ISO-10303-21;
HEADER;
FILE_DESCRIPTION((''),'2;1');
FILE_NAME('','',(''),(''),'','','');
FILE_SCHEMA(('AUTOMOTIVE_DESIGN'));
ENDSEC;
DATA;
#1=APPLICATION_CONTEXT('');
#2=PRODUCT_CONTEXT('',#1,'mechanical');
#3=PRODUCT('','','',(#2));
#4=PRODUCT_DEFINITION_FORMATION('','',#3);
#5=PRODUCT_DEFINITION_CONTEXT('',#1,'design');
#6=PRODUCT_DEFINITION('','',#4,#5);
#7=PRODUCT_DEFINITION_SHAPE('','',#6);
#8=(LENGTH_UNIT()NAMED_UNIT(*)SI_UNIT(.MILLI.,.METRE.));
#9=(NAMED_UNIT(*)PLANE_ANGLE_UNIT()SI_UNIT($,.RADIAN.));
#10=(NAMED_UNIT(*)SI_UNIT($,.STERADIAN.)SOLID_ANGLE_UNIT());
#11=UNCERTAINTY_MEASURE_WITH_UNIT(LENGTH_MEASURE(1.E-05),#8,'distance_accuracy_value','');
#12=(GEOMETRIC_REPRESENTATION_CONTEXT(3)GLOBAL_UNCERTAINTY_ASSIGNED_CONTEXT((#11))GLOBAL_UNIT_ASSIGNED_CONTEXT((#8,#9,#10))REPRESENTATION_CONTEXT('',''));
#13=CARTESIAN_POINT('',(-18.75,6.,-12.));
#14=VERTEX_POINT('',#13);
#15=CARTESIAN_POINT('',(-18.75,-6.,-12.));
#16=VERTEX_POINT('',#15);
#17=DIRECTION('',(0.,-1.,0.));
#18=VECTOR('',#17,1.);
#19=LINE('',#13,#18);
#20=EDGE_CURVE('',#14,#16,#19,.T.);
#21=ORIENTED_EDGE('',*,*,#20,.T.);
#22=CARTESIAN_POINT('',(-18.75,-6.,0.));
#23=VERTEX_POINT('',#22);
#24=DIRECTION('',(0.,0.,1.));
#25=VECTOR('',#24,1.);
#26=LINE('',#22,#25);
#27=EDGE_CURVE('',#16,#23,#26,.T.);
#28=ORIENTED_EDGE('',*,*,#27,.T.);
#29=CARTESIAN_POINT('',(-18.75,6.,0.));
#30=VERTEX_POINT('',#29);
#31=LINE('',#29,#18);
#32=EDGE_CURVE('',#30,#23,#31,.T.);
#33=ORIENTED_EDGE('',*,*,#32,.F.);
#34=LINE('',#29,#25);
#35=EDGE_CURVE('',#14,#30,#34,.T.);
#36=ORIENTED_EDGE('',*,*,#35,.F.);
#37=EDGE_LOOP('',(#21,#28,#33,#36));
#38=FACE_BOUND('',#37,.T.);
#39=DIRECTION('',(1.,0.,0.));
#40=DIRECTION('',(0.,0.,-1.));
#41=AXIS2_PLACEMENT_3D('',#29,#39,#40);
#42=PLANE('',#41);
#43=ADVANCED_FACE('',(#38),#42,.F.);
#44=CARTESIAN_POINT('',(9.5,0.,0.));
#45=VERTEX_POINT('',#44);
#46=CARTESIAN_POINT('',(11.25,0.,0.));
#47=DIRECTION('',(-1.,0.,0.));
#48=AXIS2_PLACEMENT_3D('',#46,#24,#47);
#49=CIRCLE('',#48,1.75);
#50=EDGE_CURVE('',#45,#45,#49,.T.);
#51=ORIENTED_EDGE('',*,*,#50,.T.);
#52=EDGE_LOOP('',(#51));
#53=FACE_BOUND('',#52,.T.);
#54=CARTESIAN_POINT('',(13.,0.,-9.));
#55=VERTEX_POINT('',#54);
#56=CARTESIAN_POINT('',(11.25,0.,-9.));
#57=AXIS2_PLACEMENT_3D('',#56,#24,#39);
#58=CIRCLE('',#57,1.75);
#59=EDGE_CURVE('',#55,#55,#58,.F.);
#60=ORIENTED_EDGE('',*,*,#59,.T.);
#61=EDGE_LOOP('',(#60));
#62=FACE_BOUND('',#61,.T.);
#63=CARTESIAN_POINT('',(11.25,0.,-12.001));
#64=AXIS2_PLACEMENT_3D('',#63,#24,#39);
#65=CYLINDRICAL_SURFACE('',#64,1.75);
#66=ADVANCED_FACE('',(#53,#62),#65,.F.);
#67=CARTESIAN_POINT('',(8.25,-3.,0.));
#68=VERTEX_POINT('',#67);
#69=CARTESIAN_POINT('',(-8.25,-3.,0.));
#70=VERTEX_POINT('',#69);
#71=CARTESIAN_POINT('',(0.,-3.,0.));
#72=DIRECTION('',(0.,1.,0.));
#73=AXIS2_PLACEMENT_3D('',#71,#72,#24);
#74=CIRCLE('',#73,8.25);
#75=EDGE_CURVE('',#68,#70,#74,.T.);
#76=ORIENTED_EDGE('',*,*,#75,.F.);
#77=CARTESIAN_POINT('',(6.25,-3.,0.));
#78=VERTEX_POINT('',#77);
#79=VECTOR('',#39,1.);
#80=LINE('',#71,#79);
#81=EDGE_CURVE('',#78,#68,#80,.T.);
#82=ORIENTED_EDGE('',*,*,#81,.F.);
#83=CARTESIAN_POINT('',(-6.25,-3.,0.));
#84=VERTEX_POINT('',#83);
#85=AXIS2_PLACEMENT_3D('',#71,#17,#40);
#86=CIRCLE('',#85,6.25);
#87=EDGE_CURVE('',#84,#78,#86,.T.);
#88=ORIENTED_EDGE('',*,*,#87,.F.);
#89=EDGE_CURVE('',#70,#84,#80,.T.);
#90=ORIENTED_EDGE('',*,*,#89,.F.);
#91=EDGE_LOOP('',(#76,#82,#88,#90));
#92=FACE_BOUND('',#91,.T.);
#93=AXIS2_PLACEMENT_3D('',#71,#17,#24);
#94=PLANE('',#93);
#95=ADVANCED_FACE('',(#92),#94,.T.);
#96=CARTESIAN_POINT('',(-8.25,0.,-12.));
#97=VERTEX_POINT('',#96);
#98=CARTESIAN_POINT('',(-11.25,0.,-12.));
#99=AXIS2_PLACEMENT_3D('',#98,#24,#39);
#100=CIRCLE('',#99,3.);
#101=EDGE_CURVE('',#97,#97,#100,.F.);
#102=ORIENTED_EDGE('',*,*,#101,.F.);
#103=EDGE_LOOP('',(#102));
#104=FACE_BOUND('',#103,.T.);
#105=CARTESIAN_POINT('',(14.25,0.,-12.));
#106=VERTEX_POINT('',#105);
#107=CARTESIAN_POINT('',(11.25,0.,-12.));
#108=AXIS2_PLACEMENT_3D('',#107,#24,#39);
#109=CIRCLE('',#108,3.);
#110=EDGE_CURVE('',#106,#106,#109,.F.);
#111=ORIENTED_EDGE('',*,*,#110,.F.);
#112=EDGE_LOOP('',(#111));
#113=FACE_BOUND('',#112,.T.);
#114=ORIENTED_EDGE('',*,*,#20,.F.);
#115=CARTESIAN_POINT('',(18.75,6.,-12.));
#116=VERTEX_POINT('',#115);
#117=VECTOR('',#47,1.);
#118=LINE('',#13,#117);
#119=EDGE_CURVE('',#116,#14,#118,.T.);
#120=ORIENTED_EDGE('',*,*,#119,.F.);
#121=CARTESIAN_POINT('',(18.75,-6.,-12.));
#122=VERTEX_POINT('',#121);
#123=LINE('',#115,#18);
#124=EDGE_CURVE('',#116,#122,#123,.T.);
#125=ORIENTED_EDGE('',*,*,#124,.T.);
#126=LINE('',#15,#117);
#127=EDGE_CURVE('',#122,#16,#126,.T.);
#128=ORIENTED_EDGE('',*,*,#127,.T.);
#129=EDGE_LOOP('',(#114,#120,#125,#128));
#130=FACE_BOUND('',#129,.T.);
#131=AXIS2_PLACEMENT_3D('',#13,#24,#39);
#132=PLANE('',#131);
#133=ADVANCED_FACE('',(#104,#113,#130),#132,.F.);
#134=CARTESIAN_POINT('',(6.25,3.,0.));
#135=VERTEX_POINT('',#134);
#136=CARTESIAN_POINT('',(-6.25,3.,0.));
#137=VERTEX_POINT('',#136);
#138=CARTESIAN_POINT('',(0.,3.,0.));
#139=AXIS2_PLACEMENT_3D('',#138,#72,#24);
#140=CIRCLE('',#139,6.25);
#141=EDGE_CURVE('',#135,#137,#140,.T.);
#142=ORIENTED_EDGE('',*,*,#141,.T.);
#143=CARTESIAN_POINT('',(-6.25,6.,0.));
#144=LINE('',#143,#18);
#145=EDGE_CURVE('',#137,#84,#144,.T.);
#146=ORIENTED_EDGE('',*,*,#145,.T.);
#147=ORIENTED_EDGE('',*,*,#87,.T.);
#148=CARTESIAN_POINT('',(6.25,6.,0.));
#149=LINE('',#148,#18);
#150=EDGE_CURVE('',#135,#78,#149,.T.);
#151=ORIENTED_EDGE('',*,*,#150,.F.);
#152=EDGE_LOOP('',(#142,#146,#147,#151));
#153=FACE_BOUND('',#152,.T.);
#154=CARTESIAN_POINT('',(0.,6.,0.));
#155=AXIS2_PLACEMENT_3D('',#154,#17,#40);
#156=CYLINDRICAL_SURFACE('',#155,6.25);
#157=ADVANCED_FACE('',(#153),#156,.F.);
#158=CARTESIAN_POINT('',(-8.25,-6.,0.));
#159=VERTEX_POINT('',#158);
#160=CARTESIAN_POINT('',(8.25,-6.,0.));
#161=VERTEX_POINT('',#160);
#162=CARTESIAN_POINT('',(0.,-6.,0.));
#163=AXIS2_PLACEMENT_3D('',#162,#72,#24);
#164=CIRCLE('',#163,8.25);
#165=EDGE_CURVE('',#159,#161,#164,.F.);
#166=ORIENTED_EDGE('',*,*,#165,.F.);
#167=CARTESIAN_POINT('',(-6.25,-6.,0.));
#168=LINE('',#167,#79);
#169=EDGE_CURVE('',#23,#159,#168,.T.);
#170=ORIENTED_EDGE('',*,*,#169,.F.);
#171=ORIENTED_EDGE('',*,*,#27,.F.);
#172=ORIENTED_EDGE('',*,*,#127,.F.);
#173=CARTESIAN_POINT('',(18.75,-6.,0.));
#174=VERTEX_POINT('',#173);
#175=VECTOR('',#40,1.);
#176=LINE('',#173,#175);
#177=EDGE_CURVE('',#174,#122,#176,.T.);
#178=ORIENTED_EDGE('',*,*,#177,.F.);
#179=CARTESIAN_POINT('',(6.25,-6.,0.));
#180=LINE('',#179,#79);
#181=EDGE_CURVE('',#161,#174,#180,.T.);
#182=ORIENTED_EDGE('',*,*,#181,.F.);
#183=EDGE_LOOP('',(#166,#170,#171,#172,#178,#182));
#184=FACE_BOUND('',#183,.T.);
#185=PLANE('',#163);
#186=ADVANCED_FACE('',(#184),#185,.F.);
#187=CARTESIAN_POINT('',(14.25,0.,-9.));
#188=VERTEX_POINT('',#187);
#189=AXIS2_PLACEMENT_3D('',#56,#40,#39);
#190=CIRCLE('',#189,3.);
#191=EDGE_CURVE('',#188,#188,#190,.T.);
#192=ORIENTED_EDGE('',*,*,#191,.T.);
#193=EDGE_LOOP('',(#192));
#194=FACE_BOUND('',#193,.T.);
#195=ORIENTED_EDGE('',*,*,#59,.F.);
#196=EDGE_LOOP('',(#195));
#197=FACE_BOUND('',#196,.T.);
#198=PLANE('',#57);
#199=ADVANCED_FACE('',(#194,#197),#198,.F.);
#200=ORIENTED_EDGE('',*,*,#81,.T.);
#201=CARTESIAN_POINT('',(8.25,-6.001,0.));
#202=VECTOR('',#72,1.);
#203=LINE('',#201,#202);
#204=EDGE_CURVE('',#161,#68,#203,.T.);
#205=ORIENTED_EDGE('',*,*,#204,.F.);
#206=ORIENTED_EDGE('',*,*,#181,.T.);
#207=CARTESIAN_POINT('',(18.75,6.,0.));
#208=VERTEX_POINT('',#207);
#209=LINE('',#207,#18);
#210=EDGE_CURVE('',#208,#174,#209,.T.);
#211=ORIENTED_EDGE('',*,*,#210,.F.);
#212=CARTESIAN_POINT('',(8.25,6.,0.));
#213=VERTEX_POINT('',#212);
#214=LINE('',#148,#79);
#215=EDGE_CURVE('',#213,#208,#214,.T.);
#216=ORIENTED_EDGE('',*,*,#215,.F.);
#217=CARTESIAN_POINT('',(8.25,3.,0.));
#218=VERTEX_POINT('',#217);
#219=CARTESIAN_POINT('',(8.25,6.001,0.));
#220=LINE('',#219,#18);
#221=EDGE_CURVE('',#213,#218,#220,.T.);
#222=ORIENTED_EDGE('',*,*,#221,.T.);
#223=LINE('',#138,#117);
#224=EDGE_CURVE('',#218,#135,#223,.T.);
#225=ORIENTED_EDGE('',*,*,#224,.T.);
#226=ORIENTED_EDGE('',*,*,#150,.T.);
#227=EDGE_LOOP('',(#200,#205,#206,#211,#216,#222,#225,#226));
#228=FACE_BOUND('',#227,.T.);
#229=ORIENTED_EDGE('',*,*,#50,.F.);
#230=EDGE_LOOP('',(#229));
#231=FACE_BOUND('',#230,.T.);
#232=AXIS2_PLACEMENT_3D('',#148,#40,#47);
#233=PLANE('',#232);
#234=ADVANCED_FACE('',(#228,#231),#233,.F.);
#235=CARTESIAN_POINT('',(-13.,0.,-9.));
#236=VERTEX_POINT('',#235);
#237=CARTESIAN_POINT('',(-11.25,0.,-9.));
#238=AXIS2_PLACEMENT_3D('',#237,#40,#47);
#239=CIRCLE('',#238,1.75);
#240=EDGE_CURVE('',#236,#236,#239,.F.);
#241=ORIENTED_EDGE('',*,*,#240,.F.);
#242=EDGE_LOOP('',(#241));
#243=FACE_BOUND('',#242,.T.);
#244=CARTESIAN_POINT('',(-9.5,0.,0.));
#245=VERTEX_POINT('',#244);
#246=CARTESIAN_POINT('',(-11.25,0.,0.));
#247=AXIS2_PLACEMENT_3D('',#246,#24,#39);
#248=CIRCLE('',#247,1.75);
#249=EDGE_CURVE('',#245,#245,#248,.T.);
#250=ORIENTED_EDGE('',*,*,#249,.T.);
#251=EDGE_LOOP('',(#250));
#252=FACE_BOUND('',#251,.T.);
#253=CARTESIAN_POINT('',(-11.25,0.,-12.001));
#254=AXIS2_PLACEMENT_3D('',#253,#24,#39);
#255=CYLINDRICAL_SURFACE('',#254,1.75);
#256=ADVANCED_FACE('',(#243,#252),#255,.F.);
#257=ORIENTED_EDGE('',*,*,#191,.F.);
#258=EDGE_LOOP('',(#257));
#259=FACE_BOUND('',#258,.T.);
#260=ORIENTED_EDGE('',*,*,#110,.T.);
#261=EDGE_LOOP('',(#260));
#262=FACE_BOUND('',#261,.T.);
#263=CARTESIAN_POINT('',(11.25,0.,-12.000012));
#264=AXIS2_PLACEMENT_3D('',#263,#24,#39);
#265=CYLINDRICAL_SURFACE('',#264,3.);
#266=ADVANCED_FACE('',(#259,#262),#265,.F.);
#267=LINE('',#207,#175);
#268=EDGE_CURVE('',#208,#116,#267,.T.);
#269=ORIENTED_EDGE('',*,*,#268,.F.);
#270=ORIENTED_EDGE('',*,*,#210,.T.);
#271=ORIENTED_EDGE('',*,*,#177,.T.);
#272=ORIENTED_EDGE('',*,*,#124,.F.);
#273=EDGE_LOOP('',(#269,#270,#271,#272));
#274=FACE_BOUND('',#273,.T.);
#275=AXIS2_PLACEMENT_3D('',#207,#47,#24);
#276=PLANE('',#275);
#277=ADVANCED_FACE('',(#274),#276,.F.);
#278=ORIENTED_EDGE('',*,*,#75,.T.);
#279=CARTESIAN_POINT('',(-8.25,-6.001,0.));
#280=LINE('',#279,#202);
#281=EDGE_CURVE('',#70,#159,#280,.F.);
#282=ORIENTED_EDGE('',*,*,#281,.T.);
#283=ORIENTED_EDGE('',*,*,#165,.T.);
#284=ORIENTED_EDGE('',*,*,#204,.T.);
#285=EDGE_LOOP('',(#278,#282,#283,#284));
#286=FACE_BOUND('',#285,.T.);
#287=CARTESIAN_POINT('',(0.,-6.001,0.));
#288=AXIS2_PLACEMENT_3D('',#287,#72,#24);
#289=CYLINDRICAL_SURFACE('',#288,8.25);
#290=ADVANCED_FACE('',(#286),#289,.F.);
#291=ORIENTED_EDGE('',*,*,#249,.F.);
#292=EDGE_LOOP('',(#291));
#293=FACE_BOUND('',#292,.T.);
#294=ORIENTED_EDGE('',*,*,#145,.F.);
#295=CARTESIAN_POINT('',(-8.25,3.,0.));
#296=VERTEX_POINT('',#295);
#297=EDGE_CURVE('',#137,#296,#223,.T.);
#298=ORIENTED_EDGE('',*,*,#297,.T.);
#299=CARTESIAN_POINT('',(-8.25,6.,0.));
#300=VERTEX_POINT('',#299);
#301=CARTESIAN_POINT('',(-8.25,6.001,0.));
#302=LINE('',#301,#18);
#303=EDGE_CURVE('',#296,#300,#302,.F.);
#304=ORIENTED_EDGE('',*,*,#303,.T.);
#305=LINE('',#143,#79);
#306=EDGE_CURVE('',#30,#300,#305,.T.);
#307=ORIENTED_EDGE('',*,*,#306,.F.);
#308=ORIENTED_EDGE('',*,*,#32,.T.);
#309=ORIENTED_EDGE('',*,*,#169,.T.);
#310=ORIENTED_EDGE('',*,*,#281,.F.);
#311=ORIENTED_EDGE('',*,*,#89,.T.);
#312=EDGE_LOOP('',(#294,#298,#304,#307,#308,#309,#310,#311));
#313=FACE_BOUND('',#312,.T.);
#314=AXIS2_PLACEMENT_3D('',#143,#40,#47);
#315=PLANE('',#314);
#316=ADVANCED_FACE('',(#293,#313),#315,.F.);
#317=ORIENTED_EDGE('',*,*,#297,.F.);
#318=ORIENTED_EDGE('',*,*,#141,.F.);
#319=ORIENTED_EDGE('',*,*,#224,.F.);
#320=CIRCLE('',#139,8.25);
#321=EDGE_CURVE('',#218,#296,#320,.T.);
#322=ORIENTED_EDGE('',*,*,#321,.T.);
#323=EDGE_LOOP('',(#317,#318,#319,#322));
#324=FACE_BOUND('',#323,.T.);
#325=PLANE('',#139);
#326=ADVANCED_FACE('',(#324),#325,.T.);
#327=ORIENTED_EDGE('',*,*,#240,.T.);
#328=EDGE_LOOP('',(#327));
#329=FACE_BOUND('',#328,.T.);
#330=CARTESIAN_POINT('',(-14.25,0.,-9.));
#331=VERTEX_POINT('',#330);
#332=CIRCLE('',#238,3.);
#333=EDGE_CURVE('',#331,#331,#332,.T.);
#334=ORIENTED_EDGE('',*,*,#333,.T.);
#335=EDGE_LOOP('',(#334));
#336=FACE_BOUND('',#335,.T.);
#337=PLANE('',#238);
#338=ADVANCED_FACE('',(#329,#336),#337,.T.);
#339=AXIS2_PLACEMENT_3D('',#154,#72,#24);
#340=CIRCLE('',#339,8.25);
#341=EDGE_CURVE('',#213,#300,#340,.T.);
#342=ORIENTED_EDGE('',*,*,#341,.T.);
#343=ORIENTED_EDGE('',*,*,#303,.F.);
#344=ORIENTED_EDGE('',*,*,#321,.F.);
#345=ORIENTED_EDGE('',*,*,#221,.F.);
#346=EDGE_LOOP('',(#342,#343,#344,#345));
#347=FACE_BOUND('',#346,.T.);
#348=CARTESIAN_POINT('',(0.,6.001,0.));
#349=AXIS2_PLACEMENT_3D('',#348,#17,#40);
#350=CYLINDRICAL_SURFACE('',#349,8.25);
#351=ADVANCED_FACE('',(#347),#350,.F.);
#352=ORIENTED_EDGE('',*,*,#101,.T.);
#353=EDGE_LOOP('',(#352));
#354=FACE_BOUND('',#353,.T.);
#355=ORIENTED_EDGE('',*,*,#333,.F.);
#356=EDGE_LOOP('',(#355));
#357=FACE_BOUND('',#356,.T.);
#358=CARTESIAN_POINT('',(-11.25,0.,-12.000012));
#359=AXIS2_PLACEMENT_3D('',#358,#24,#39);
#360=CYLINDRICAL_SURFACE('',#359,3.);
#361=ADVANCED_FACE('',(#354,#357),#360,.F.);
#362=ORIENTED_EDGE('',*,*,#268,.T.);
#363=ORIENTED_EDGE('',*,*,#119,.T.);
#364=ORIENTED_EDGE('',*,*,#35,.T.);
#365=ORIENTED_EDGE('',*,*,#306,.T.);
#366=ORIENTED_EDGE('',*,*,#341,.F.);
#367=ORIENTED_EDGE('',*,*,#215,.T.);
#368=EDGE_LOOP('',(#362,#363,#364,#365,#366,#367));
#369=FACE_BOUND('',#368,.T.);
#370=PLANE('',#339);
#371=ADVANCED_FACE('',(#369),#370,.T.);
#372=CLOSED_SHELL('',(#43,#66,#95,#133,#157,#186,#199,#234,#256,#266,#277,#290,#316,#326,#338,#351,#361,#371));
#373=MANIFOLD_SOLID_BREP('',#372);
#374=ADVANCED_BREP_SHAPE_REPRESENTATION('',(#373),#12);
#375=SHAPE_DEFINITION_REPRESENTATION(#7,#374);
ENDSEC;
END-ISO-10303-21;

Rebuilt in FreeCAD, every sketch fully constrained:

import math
import FreeCAD as App
import Part
import Sketcher
from FreeCAD import Vector

doc = App.newDocument("Part")
body = doc.addObject("PartDesign::Body", "Body")

# Sketch on XZ plane
sketch1 = doc.addObject("Sketcher::SketchObject", "Sketch")
body.addObject(sketch1)
sketch1.AttachmentSupport = (doc.XZ_Plane, [""])
sketch1.MapMode = "FlatFace"
sketch1.addGeometry([
    Part.LineSegment(Vector(-18.75, 0, 0), Vector(-6.25, 0, 0)),  # 0
    Part.ArcOfCircle(Part.Circle(Vector(0, 0, 0), Vector(0, 0, 1), 6.25), math.radians(180), math.radians(360)),  # 1
    Part.LineSegment(Vector(6.25, 0, 0), Vector(18.75, 0, 0)),  # 2
    Part.LineSegment(Vector(18.75, 0, 0), Vector(18.75, -12, 0)),  # 3
    Part.LineSegment(Vector(18.75, -12, 0), Vector(-18.75, -12, 0)),  # 4
    Part.LineSegment(Vector(-18.75, -12, 0), Vector(-18.75, 0, 0)),  # 5
], False)
sketch1.addConstraint([
    Sketcher.Constraint("Coincident", 0, 2, 1, 1),
    Sketcher.Constraint("Coincident", 1, 2, 2, 1),
    Sketcher.Constraint("Coincident", 2, 2, 3, 1),
    Sketcher.Constraint("Coincident", 3, 2, 4, 1),
    Sketcher.Constraint("Coincident", 4, 2, 5, 1),
    Sketcher.Constraint("Coincident", 5, 2, 0, 1),
    Sketcher.Constraint("Horizontal", 0),
    Sketcher.Constraint("Horizontal", 2),
    Sketcher.Constraint("Vertical", 3),
    Sketcher.Constraint("Horizontal", 4),
    Sketcher.Constraint("Vertical", 5),
    Sketcher.Constraint("Coincident", 1, 3, -1, 1),
    Sketcher.Constraint("Symmetric", 2, 2, 5, 2, -1, 1),
    Sketcher.Constraint("PointOnObject", 0, 2, -1),
    Sketcher.Constraint("DistanceY", 3, 2, 3, 1, 12.0),
    Sketcher.Constraint("Radius", 1, 6.25),
    Sketcher.Constraint("DistanceX", 0, 1, 0, 2, 12.5),
])
pad1 = doc.addObject("PartDesign::Pad", "Pad")
body.addObject(pad1)
pad1.Profile = sketch1
pad1.Length = 12
pad1.Midplane = True

# Sketch on XZ plane
sketch2 = doc.addObject("Sketcher::SketchObject", "Sketch001")
body.addObject(sketch2)
sketch2.AttachmentSupport = (doc.XZ_Plane, [""])
sketch2.MapMode = "FlatFace"
sketch2.AttachmentOffset = App.Placement(Vector(0, 0, -3), App.Rotation())
sketch2.addGeometry(Part.Circle(Vector(0, 0, 0), Vector(0, 0, 1), 8.25), False)
sketch2.addConstraint([
    Sketcher.Constraint("Coincident", 0, 3, -1, 1),
    Sketcher.Constraint("Diameter", 0, 16.5),
])
pocket1 = doc.addObject("PartDesign::Pocket", "Pocket")
body.addObject(pocket1)
pocket1.Profile = sketch2
pocket1.Length = 3
doc.recompute()

mirrored = doc.addObject("PartDesign::Mirrored", "Mirrored")
body.addObject(mirrored)
mirrored.Originals = [pocket1]
mirrored.MirrorPlane = (doc.XZ_Plane, [""])
body.Tip = mirrored

# Sketch on XY plane
sketch3 = doc.addObject("Sketcher::SketchObject", "Sketch002")
body.addObject(sketch3)
sketch3.AttachmentSupport = (doc.XY_Plane, [""])
sketch3.MapMode = "FlatFace"
sketch3.addGeometry(Part.Circle(Vector(-11.25, 0, 0), Vector(0, 0, 1), 1.75), False)
sketch3.addConstraint([
    Sketcher.Constraint("PointOnObject", 0, 3, -1),
    Sketcher.Constraint("Diameter", 0, 3.5),
    Sketcher.Constraint("DistanceX", 0, 3, -1, 1, 11.25),
])
pocket2 = doc.addObject("PartDesign::Pocket", "Pocket001")
body.addObject(pocket2)
pocket2.Profile = sketch3
pocket2.Type = "UpToFirst"

# Sketch on XY plane
sketch4 = doc.addObject("Sketcher::SketchObject", "Sketch003")
body.addObject(sketch4)
sketch4.AttachmentSupport = (doc.XY_Plane, [""])
sketch4.MapMode = "FlatFace"
sketch4.addGeometry(Part.Circle(Vector(11.25, 0, 0), Vector(0, 0, 1), 1.75), False)
sketch4.addConstraint([
    Sketcher.Constraint("PointOnObject", 0, 3, -1),
    Sketcher.Constraint("Diameter", 0, 3.5),
    Sketcher.Constraint("DistanceX", -1, 1, 0, 3, 11.25),
])
pocket3 = doc.addObject("PartDesign::Pocket", "Pocket002")
body.addObject(pocket3)
pocket3.Profile = sketch4
pocket3.Type = "UpToFirst"

# Sketch on XY plane
sketch5 = doc.addObject("Sketcher::SketchObject", "Sketch004")
body.addObject(sketch5)
sketch5.AttachmentSupport = (doc.XY_Plane, [""])
sketch5.MapMode = "FlatFace"
sketch5.AttachmentOffset = App.Placement(Vector(0, 0, -12), App.Rotation())
sketch5.addGeometry([
    Part.Circle(Vector(-11.25, 0, 0), Vector(0, 0, 1), 3),
    Part.Circle(Vector(11.25, 0, 0), Vector(0, 0, 1), 3),
], False)
sketch5.addConstraint([
    Sketcher.Constraint("Equal", 0, 1),
    Sketcher.Constraint("Symmetric", 0, 3, 1, 3, -1, 1),
    Sketcher.Constraint("PointOnObject", 0, 3, -1),
    Sketcher.Constraint("Diameter", 0, 6.0),
    Sketcher.Constraint("DistanceX", 0, 3, 1, 3, 22.5),
])
pocket4 = doc.addObject("PartDesign::Pocket", "Pocket003")
body.addObject(pocket4)
pocket4.Profile = sketch5
pocket4.Type = "TwoLengths"
pocket4.Length = 1
pocket4.Length2 = 3

doc.recompute()
